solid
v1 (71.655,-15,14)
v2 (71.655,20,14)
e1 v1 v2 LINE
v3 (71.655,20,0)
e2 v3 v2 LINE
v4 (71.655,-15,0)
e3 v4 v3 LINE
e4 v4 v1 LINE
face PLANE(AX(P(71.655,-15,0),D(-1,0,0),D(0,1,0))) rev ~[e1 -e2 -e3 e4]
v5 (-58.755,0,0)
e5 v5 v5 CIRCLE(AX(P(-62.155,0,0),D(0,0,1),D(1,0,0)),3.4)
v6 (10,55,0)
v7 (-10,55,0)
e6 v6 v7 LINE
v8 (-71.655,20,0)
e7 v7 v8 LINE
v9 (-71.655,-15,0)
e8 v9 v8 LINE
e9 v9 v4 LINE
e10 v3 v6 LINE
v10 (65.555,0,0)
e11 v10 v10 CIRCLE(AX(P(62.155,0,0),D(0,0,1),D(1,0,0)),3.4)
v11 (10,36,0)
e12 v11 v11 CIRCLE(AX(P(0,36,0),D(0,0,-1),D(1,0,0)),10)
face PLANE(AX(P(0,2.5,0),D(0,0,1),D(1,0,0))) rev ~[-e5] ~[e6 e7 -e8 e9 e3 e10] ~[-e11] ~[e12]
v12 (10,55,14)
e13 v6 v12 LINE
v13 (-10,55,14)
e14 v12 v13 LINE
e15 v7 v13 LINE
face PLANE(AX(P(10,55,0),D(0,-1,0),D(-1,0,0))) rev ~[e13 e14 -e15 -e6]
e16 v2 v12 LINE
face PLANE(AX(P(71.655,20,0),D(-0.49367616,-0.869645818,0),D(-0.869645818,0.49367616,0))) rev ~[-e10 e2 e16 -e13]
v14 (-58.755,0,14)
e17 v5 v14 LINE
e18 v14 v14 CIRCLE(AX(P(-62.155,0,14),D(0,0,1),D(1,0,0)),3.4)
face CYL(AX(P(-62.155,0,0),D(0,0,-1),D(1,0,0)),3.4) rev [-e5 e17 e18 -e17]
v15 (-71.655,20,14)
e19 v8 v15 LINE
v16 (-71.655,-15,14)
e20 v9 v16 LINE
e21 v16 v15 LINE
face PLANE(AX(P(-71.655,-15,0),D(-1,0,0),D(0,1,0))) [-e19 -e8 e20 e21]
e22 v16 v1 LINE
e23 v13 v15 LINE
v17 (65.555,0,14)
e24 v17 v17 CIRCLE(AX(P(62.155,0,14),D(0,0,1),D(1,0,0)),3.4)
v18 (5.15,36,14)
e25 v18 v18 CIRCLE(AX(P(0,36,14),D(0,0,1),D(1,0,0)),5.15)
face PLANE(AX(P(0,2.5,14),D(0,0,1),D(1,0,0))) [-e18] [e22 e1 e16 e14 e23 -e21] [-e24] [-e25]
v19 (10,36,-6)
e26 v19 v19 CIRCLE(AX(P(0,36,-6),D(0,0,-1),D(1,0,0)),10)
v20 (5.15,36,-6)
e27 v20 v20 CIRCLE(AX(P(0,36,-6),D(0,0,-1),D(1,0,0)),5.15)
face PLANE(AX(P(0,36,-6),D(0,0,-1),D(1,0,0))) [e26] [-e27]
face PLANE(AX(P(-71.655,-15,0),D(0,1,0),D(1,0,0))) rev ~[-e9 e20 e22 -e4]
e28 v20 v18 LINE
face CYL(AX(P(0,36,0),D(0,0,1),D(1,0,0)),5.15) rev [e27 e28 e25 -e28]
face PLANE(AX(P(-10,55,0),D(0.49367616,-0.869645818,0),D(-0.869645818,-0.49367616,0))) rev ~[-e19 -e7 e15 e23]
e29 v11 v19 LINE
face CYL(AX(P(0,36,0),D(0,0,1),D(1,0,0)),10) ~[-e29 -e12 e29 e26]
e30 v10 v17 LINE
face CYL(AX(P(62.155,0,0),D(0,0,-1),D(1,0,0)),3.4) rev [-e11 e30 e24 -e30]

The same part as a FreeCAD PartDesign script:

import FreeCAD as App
import Part
import Sketcher
Q = App.Units.Quantity

doc = App.newDocument("Part")
params = doc.addObject("Spreadsheet::Sheet", "Params")
for row, (alias, value) in enumerate([
    ("sketch1_diameter", "6.8 mm"),
    ("sketch1_diameter2", "10.3 mm"),
    ("sketch1_width", "20 mm"),
    ("sketch1_height", "35 mm"),
    ("sketch1_width2", "143.31 mm"),
    ("pad1_length", "14 mm"),
    ("sketch2_diameter", "20 mm"),
    ("sketch2_diameter2", "10.3 mm"),
    ("pad2_length", "6 mm"),
], start=1):
    params.set(f"A{row}", alias)
    params.set(f"B{row}", "=" + value)
    params.setAlias(f"B{row}", alias)

body = doc.addObject("PartDesign::Body", "Body")

# Sketch on XY plane
sketch1 = doc.addObject("Sketcher::SketchObject", "Sketch")
body.addObject(sketch1)
sketch1.AttachmentSupport = (doc.XY_Plane, [""])
sketch1.MapMode = "FlatFace"
sketch1.addGeometry([
    Part.LineSegment(App.Vector(-71.7, 20, 0), App.Vector(-71.7, -15, 0)),  # 0
    Part.LineSegment(App.Vector(-71.7, -15, 0), App.Vector(71.7, -15, 0)),  # 1
    Part.LineSegment(App.Vector(71.7, -15, 0), App.Vector(71.7, 20, 0)),  # 2
    Part.LineSegment(App.Vector(71.7, 20, 0), App.Vector(10, 55, 0)),  # 3
    Part.LineSegment(App.Vector(10, 55, 0), App.Vector(-10, 55, 0)),  # 4
    Part.LineSegment(App.Vector(-10, 55, 0), App.Vector(-71.7, 20, 0)),  # 5
    Part.Circle(App.Vector(-62.2, 0, 0), App.Vector(0, 0, 1), 3.4),  # 6
    Part.Circle(App.Vector(62.2, 0, 0), App.Vector(0, 0, 1), 3.4),  # 7
    Part.Circle(App.Vector(0, 36, 0), App.Vector(0, 0, 1), 5.2),  # 8
], False)
sketch1.addConstraint([
    Sketcher.Constraint("Coincident", 0, 2, 1, 1),
    Sketcher.Constraint("Coincident", 1, 2, 2, 1),
    Sketcher.Constraint("Coincident", 2, 2, 3, 1),
    Sketcher.Constraint("Coincident", 3, 2, 4, 1),
    Sketcher.Constraint("Coincident", 4, 2, 5, 1),
    Sketcher.Constraint("Coincident", 5, 2, 0, 1),
    Sketcher.Constraint("Vertical", 0),
    Sketcher.Constraint("Horizontal", 1),
    Sketcher.Constraint("Vertical", 2),
    Sketcher.Constraint("Horizontal", 4),
    Sketcher.Constraint("Equal", 6, 7),
    Sketcher.Constraint("Symmetric", 6, 3, 7, 3, -1, 1),
    Sketcher.Constraint("Symmetric", 2, 2, 5, 2, -2),
    Sketcher.Constraint("PointOnObject", 6, 3, -1),
    Sketcher.Constraint("PointOnObject", 8, 3, -2),
    Sketcher.Constraint("Equal", 3, 5),
    Sketcher.Constraint("Diameter", 6, Q("6.8 mm")),
    Sketcher.Constraint("Diameter", 8, Q("10.3 mm")),
    Sketcher.Constraint("DistanceX", 4, 2, 4, 1, Q("20 mm")),
    Sketcher.Constraint("DistanceY", 0, 2, 0, 1, Q("35 mm")),
    Sketcher.Constraint("DistanceY", -1, 1, 8, 3, Q("36 mm")),
    Sketcher.Constraint("DistanceY", 0, 2, -1, 1, Q("15 mm")),
    Sketcher.Constraint("DistanceY", -1, 1, 3, 2, Q("55 mm")),
    Sketcher.Constraint("DistanceX", 1, 1, 1, 2, Q("143.31 mm")),
    Sketcher.Constraint("DistanceX", 0, 2, 6, 3, Q("9.5 mm")),
])
sketch1.setExpression("Constraints[16]", "Params.sketch1_diameter")
sketch1.setExpression("Constraints[17]", "Params.sketch1_diameter2")
sketch1.setExpression("Constraints[18]", "Params.sketch1_width")
sketch1.setExpression("Constraints[19]", "Params.sketch1_height")
sketch1.setExpression("Constraints[23]", "Params.sketch1_width2")
pad1 = doc.addObject("PartDesign::Pad", "Pad")
body.addObject(pad1)
pad1.Profile = sketch1
pad1.setExpression("Length", "Params.pad1_length")

# Sketch on XY plane
sketch2 = doc.addObject("Sketcher::SketchObject", "Sketch001")
body.addObject(sketch2)
sketch2.AttachmentSupport = (doc.XY_Plane, [""])
sketch2.MapMode = "FlatFace"
sketch2.addGeometry([
    Part.Circle(App.Vector(0, 36, 0), App.Vector(0, 0, 1), 10),
    Part.Circle(App.Vector(0, 36, 0), App.Vector(0, 0, 1), 5),
], False)
sketch2.addConstraint([
    Sketcher.Constraint("Coincident", 1, 3, 0, 3),
    Sketcher.Constraint("PointOnObject", 0, 3, -2),
    Sketcher.Constraint("Diameter", 0, Q("20 mm")),
    Sketcher.Constraint("Diameter", 1, Q("10.3 mm")),
    Sketcher.Constraint("DistanceY", -1, 1, 0, 3, Q("36 mm")),
])
sketch2.setExpression("Constraints[2]", "Params.sketch2_diameter")
sketch2.setExpression("Constraints[3]", "Params.sketch2_diameter2")
pad2 = doc.addObject("PartDesign::Pad", "Pad001")
body.addObject(pad2)
pad2.Profile = sketch2
pad2.setExpression("Length", "Params.pad2_length")
pad2.Reversed = True

doc.recompute()
